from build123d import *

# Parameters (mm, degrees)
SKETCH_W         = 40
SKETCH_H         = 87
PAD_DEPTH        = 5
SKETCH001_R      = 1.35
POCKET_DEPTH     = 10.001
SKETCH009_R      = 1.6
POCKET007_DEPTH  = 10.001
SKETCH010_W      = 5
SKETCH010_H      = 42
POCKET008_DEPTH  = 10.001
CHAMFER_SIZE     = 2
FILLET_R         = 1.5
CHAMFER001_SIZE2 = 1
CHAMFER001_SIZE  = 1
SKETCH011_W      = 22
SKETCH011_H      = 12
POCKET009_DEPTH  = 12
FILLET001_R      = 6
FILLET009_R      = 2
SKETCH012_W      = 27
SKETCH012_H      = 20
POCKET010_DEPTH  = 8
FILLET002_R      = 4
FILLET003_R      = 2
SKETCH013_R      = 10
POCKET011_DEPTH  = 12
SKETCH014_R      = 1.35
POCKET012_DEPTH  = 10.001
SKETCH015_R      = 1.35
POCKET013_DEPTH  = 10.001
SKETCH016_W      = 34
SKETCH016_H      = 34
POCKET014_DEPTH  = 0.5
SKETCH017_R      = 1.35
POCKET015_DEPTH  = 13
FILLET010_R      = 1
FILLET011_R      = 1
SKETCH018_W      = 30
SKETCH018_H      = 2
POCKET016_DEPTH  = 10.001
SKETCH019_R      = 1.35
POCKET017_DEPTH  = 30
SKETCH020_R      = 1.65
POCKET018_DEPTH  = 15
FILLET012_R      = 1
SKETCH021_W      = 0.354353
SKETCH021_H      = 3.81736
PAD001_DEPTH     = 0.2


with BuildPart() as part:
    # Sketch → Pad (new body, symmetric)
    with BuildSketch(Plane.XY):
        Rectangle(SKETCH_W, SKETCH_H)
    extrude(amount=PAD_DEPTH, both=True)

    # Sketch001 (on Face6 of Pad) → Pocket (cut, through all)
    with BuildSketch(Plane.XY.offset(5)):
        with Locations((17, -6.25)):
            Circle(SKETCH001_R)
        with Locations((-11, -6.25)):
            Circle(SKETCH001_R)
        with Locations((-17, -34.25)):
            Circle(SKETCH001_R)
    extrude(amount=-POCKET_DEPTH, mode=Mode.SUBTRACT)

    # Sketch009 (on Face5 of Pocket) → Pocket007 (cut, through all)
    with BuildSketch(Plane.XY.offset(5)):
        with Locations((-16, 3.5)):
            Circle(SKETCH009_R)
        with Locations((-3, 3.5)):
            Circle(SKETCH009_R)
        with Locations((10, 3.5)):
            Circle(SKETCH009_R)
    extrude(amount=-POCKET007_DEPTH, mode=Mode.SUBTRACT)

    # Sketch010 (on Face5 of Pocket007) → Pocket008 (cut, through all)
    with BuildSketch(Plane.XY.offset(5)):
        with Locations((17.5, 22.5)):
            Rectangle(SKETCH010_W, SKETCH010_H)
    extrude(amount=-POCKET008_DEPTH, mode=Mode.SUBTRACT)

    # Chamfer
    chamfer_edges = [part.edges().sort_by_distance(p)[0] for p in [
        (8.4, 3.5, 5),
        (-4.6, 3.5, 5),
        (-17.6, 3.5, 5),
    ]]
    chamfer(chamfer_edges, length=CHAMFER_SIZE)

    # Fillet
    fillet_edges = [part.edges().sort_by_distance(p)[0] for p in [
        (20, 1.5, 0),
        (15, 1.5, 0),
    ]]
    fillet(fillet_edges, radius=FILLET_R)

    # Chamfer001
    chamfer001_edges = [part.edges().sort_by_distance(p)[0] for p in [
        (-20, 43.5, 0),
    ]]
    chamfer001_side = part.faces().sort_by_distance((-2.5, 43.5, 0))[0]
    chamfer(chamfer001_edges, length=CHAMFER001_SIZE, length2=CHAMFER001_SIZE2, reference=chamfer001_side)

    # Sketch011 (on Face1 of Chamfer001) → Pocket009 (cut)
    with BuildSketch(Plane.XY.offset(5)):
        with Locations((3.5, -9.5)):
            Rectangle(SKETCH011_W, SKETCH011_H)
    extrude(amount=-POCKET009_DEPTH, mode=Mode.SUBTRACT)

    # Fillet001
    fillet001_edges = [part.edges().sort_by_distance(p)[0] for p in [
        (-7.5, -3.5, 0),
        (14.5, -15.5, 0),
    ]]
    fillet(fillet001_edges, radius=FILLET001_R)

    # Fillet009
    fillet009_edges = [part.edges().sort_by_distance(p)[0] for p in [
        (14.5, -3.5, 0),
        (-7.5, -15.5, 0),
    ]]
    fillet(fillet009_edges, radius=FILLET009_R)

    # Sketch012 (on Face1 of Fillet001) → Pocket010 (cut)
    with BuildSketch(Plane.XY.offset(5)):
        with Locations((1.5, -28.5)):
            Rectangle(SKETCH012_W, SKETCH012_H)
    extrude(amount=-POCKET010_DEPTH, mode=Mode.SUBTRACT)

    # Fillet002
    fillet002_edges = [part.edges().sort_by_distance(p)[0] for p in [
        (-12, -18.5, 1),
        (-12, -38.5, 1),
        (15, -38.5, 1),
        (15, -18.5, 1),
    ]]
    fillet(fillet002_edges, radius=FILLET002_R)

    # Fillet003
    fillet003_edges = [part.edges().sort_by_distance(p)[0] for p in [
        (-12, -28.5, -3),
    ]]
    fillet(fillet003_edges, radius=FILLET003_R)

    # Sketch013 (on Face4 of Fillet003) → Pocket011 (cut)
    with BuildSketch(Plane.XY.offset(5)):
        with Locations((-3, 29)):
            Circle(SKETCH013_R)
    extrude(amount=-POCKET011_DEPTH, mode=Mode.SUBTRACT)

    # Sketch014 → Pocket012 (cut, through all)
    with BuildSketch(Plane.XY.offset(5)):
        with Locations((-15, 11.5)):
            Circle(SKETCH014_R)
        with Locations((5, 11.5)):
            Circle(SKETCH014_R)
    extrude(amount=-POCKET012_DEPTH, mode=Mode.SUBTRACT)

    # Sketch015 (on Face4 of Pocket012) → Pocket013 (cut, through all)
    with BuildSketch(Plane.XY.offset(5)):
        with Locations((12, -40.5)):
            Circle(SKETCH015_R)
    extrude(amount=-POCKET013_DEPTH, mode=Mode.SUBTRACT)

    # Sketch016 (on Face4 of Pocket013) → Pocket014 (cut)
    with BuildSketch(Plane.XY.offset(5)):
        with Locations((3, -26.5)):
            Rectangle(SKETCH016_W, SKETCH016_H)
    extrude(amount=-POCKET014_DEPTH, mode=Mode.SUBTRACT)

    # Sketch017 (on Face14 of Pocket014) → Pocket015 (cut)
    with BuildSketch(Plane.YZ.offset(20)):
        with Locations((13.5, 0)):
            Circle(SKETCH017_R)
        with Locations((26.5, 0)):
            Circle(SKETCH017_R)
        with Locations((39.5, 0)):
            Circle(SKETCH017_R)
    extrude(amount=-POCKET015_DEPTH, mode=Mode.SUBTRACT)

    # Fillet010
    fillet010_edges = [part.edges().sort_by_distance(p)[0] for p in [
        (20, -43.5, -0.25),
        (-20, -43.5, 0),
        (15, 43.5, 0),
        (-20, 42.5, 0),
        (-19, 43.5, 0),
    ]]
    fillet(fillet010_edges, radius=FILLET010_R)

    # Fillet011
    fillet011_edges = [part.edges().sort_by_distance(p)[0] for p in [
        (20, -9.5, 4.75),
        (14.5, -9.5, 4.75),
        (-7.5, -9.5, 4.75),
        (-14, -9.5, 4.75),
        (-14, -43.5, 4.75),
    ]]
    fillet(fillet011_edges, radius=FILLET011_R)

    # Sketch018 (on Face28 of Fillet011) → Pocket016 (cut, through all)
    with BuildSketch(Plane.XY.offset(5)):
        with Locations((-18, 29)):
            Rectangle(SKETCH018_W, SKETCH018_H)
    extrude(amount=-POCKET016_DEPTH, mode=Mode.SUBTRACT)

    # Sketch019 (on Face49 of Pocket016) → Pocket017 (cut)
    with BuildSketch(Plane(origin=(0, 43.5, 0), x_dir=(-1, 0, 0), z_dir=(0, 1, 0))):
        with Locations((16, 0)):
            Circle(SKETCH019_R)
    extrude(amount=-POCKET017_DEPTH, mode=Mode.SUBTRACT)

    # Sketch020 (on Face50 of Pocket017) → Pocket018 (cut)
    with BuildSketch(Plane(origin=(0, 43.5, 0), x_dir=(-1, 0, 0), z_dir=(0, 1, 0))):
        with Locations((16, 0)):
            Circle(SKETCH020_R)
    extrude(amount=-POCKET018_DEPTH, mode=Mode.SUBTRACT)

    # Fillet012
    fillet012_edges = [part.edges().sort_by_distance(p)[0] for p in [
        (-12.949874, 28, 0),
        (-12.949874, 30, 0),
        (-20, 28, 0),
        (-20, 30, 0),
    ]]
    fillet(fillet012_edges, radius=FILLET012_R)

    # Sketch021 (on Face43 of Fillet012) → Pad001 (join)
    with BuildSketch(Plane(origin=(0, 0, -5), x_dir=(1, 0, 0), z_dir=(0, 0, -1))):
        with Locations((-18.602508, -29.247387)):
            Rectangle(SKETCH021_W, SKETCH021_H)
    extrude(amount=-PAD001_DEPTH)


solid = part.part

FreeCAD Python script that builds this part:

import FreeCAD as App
import Part
import Sketcher


def edges_at(feature, points):
    """Names of the edges that pass closest to the given points."""
    edges = feature.Shape.Edges
    near = lambda p: min(range(len(edges)), key=lambda i: edges[i].distToShape(Part.Vertex(*p))[0])
    return sorted({f"Edge{near(p) + 1}" for p in points})

doc = App.newDocument("Part")
body = doc.addObject("PartDesign::Body", "Body")

# Sketch on XY plane
sketch1 = body.newObject("Sketcher::SketchObject", "Sketch")
sketch1.AttachmentSupport = (doc.getObject("XY_Plane"), [""])
sketch1.MapMode = "FlatFace"
sketch1.addGeometry([
    Part.LineSegment(App.Vector(-20, 44, 0), App.Vector(-20, -44, 0)),
    Part.LineSegment(App.Vector(-20, -44, 0), App.Vector(20, -44, 0)),
    Part.LineSegment(App.Vector(20, -44, 0), App.Vector(20, 44, 0)),
    Part.LineSegment(App.Vector(20, 44, 0), App.Vector(-20, 44, 0)),
], False)
sketch1.addConstraint([
    Sketcher.Constraint("Coincident", 0, 2, 1, 1),
    Sketcher.Constraint("Coincident", 1, 2, 2, 1),
    Sketcher.Constraint("Coincident", 2, 2, 3, 1),
    Sketcher.Constraint("Coincident", 3, 2, 0, 1),
    Sketcher.Constraint("Vertical", 0),
    Sketcher.Constraint("Horizontal", 1),
    Sketcher.Constraint("Vertical", 2),
    Sketcher.Constraint("Horizontal", 3),
    Sketcher.Constraint("Symmetric", 0, 2, 2, 2, -1, 1),
    Sketcher.Constraint("DistanceX", 1, 1, 1, 2, 40.0),
    Sketcher.Constraint("DistanceY", 0, 2, 0, 1, 87.0),
])
pad1 = body.newObject("PartDesign::Pad", "Pad")
pad1.Profile = sketch1
pad1.Length = 10
pad1.Midplane = True

# Sketch on XY plane
sketch2 = body.newObject("Sketcher::SketchObject", "Sketch001")
sketch2.AttachmentSupport = (doc.getObject("XY_Plane"), [""])
sketch2.MapMode = "FlatFace"
sketch2.AttachmentOffset = App.Placement(App.Vector(0, 0, 5), App.Rotation())
sketch2.addGeometry([
    Part.Circle(App.Vector(17, -6.2, 0), App.Vector(0, 0, 1), 1.4),
    Part.Circle(App.Vector(-11, -6.2, 0), App.Vector(0, 0, 1), 1.4),
    Part.Circle(App.Vector(-17, -34.2, 0), App.Vector(0, 0, 1), 1.4),
], False)
sketch2.addConstraint([
    Sketcher.Constraint("Equal", 0, 1),
    Sketcher.Constraint("Equal", 1, 2),
    Sketcher.Constraint("Horizontal", 0, 3, 1, 3),
    Sketcher.Constraint("Diameter", 0, 2.7),
    Sketcher.Constraint("DistanceX", -1, 1, 0, 3, 17.0),
    Sketcher.Constraint("DistanceX", 1, 3, -1, 1, 11.0),
    Sketcher.Constraint("DistanceX", 2, 3, -1, 1, 17.0),
    Sketcher.Constraint("DistanceY", 2, 3, 1, 3, 28.0),
    Sketcher.Constraint("DistanceY", 0, 3, -1, 1, 6.25),
])
pocket1 = body.newObject("PartDesign::Pocket", "Pocket")
pocket1.Profile = sketch2
pocket1.Type = "ThroughAll"

# Sketch on XY plane
sketch3 = body.newObject("Sketcher::SketchObject", "Sketch002")
sketch3.AttachmentSupport = (doc.getObject("XY_Plane"), [""])
sketch3.MapMode = "FlatFace"
sketch3.AttachmentOffset = App.Placement(App.Vector(0, 0, 5), App.Rotation())
sketch3.addGeometry([
    Part.Circle(App.Vector(-16, 3.5, 0), App.Vector(0, 0, 1), 1.6),
    Part.Circle(App.Vector(-3, 3.5, 0), App.Vector(0, 0, 1), 1.6),
    Part.Circle(App.Vector(10, 3.5, 0), App.Vector(0, 0, 1), 1.6),
], False)
sketch3.addConstraint([
    Sketcher.Constraint("Equal", 0, 1),
    Sketcher.Constraint("Equal", 1, 2),
    Sketcher.Constraint("Horizontal", 0, 3, 1, 3),
    Sketcher.Constraint("Horizontal", 1, 3, 2, 3),
    Sketcher.Constraint("Diameter", 0, 3.2),
    Sketcher.Constraint("DistanceX", 0, 3, -1, 1, 16.0),
    Sketcher.Constraint("DistanceX", 1, 3, -1, 1, 3.0),
    Sketcher.Constraint("DistanceX", -1, 1, 2, 3, 10.0),
    Sketcher.Constraint("DistanceY", -1, 1, 0, 3, 3.5),
])
pocket2 = body.newObject("PartDesign::Pocket", "Pocket001")
pocket2.Profile = sketch3
pocket2.Type = "ThroughAll"

# Sketch on XY plane
sketch4 = body.newObject("Sketcher::SketchObject", "Sketch003")
sketch4.AttachmentSupport = (doc.getObject("XY_Plane"), [""])
sketch4.MapMode = "FlatFace"
sketch4.AttachmentOffset = App.Placement(App.Vector(0, 0, 5), App.Rotation())
sketch4.addGeometry([
    Part.LineSegment(App.Vector(15, 44, 0), App.Vector(15, 2, 0)),
    Part.LineSegment(App.Vector(15, 2, 0), App.Vector(20, 2, 0)),
    Part.LineSegment(App.Vector(20, 2, 0), App.Vector(20, 44, 0)),
    Part.LineSegment(App.Vector(20, 44, 0), App.Vector(15, 44, 0)),
], False)
sketch4.addConstraint([
    Sketcher.Constraint("Coincident", 0, 2, 1, 1),
    Sketcher.Constraint("Coincident", 1, 2, 2, 1),
    Sketcher.Constraint("Coincident", 2, 2, 3, 1),
    Sketcher.Constraint("Coincident", 3, 2, 0, 1),
    Sketcher.Constraint("Vertical", 0),
    Sketcher.Constraint("Horizontal", 1),
    Sketcher.Constraint("Vertical", 2),
    Sketcher.Constraint("Horizontal", 3),
    Sketcher.Constraint("DistanceX", 1, 1, 1, 2, 5.0),
    Sketcher.Constraint("DistanceY", 0, 2, 0, 1, 42.0),
    Sketcher.Constraint("DistanceX", -1, 1, 0, 2, 15.0),
    Sketcher.Constraint("DistanceY", -1, 1, 0, 2, 1.5),
])
pocket3 = body.newObject("PartDesign::Pocket", "Pocket002")
pocket3.Profile = sketch4
pocket3.Type = "ThroughAll"
doc.recompute()

chamfer = body.newObject("PartDesign::Chamfer", "Chamfer")
chamfer.Base = (pocket3, edges_at(pocket3, [(8.4, 3.5, 5), (-4.6, 3.5, 5), (-17.6, 3.5, 5)]))
chamfer.Size = 2
doc.recompute()

fillet = body.newObject("PartDesign::Fillet", "Fillet")
fillet.Base = (chamfer, edges_at(chamfer, [(20, 1.5, 0), (15, 1.5, 0)]))
fillet.Radius = 1.5
doc.recompute()

chamfer2 = body.newObject("PartDesign::Chamfer", "Chamfer001")
chamfer2.Base = (fillet, edges_at(fillet, [(-20, 43.5, 0)]))
chamfer2.ChamferType = "Two distances"
chamfer2.Size = 1
chamfer2.Size2 = 1

# Sketch on XY plane
sketch5 = body.newObject("Sketcher::SketchObject", "Sketch004")
sketch5.AttachmentSupport = (doc.getObject("XY_Plane"), [""])
sketch5.MapMode = "FlatFace"
sketch5.AttachmentOffset = App.Placement(App.Vector(0, 0, 5), App.Rotation())
sketch5.addGeometry([
    Part.LineSegment(App.Vector(-8, -4, 0), App.Vector(-8, -16, 0)),
    Part.LineSegment(App.Vector(-8, -16, 0), App.Vector(14, -16, 0)),
    Part.LineSegment(App.Vector(14, -16, 0), App.Vector(14, -4, 0)),
    Part.LineSegment(App.Vector(14, -4, 0), App.Vector(-8, -4, 0)),
], False)
sketch5.addConstraint([
    Sketcher.Constraint("Coincident", 0, 2, 1, 1),
    Sketcher.Constraint("Coincident", 1, 2, 2, 1),
    Sketcher.Constraint("Coincident", 2, 2, 3, 1),
    Sketcher.Constraint("Coincident", 3, 2, 0, 1),
    Sketcher.Constraint("Vertical", 0),
    Sketcher.Constraint("Horizontal", 1),
    Sketcher.Constraint("Vertical", 2),
    Sketcher.Constraint("Horizontal", 3),
    Sketcher.Constraint("DistanceX", 1, 1, 1, 2, 22.0),
    Sketcher.Constraint("DistanceY", 0, 2, 0, 1, 12.0),
    Sketcher.Constraint("DistanceX", 0, 2, -1, 1, 7.5),
    Sketcher.Constraint("DistanceY", 0, 2, -1, 1, 15.5),
])
pocket4 = body.newObject("PartDesign::Pocket", "Pocket003")
pocket4.Profile = sketch5
pocket4.Length = 12
doc.recompute()

fillet2 = body.newObject("PartDesign::Fillet", "Fillet001")
fillet2.Base = (pocket4, edges_at(pocket4, [(-7.5, -3.5, 0), (14.5, -15.5, 0)]))
fillet2.Radius = 6
doc.recompute()

fillet3 = body.newObject("PartDesign::Fillet", "Fillet002")
fillet3.Base = (fillet2, edges_at(fillet2, [(14.5, -3.5, 0), (-7.5, -15.5, 0)]))
fillet3.Radius = 2

# Sketch on XY plane
sketch6 = body.newObject("Sketcher::SketchObject", "Sketch005")
sketch6.AttachmentSupport = (doc.getObject("XY_Plane"), [""])
sketch6.MapMode = "FlatFace"
sketch6.AttachmentOffset = App.Placement(App.Vector(0, 0, 5), App.Rotation())
sketch6.addGeometry([
    Part.LineSegment(App.Vector(-12, -18, 0), App.Vector(-12, -38, 0)),
    Part.LineSegment(App.Vector(-12, -38, 0), App.Vector(15, -38, 0)),
    Part.LineSegment(App.Vector(15, -38, 0), App.Vector(15, -18, 0)),
    Part.LineSegment(App.Vector(15, -18, 0), App.Vector(-12, -18, 0)),
], False)
sketch6.addConstraint([
    Sketcher.Constraint("Coincident", 0, 2, 1, 1),
    Sketcher.Constraint("Coincident", 1, 2, 2, 1),
    Sketcher.Constraint("Coincident", 2, 2, 3, 1),
    Sketcher.Constraint("Coincident", 3, 2, 0, 1),
    Sketcher.Constraint("Vertical", 0),
    Sketcher.Constraint("Horizontal", 1),
    Sketcher.Constraint("Vertical", 2),
    Sketcher.Constraint("Horizontal", 3),
    Sketcher.Constraint("DistanceX", 1, 1, 1, 2, 27.0),
    Sketcher.Constraint("DistanceY", 0, 2, 0, 1, 20.0),
    Sketcher.Constraint("DistanceX", 0, 2, -1, 1, 12.0),
    Sketcher.Constraint("DistanceY", 0, 2, -1, 1, 38.5),
])
pocket5 = body.newObject("PartDesign::Pocket", "Pocket004")
pocket5.Profile = sketch6
pocket5.Length = 8
doc.recompute()

fillet4 = body.newObject("PartDesign::Fillet", "Fillet003")
fillet4.Base = (pocket5, edges_at(pocket5, [
    (-12, -18.5, 1),
    (-12, -38.5, 1),
    (15, -38.5, 1),
    (15, -18.5, 1),
]))
fillet4.Radius = 4
doc.recompute()

fillet5 = body.newObject("PartDesign::Fillet", "Fillet004")
fillet5.Base = (fillet4, edges_at(fillet4, [(-12, -28.5, -3)]))
fillet5.Radius = 2

# Sketch on XY plane
sketch7 = body.newObject("Sketcher::SketchObject", "Sketch006")
sketch7.AttachmentSupport = (doc.getObject("XY_Plane"), [""])
sketch7.MapMode = "FlatFace"
sketch7.AttachmentOffset = App.Placement(App.Vector(0, 0, 5), App.Rotation())
sketch7.addGeometry(Part.Circle(App.Vector(-3, 29, 0), App.Vector(0, 0, 1), 10), False)
sketch7.addConstraint([
    Sketcher.Constraint("Diameter", 0, 20.0),
    Sketcher.Constraint("DistanceX", 0, 3, -1, 1, 3.0),
    Sketcher.Constraint("DistanceY", -1, 1, 0, 3, 29.0),
])
pocket6 = body.newObject("PartDesign::Pocket", "Pocket005")
pocket6.Profile = sketch7
pocket6.Length = 12

# Sketch on XY plane
sketch8 = body.newObject("Sketcher::SketchObject", "Sketch007")
sketch8.AttachmentSupport = (doc.getObject("XY_Plane"), [""])
sketch8.MapMode = "FlatFace"
sketch8.AttachmentOffset = App.Placement(App.Vector(0, 0, 5), App.Rotation())
sketch8.addGeometry([
    Part.Circle(App.Vector(-15, 11.5, 0), App.Vector(0, 0, 1), 1.4),
    Part.Circle(App.Vector(5, 11.5, 0), App.Vector(0, 0, 1), 1.4),
], False)
sketch8.addConstraint([
    Sketcher.Constraint("Equal", 0, 1),
    Sketcher.Constraint("Horizontal", 0, 3, 1, 3),
    Sketcher.Constraint("Diameter", 0, 2.7),
    Sketcher.Constraint("DistanceX", 0, 3, -1, 1, 15.0),
    Sketcher.Constraint("DistanceX", -1, 1, 1, 3, 5.0),
    Sketcher.Constraint("DistanceY", -1, 1, 0, 3, 11.5),
])
pocket7 = body.newObject("PartDesign::Pocket", "Pocket006")
pocket7.Profile = sketch8
pocket7.Type = "ThroughAll"

# Sketch on XY plane
sketch9 = body.newObject("Sketcher::SketchObject", "Sketch008")
sketch9.AttachmentSupport = (doc.getObject("XY_Plane"), [""])
sketch9.MapMode = "FlatFace"
sketch9.AttachmentOffset = App.Placement(App.Vector(0, 0, 5), App.Rotation())
sketch9.addGeometry(Part.Circle(App.Vector(12, -40.5, 0), App.Vector(0, 0, 1), 1.4), False)
sketch9.addConstraint([
    Sketcher.Constraint("Diameter", 0, 2.7),
    Sketcher.Constraint("DistanceX", -1, 1, 0, 3, 12.0),
    Sketcher.Constraint("DistanceY", 0, 3, -1, 1, 40.5),
])
pocket8 = body.newObject("PartDesign::Pocket", "Pocket007")
pocket8.Profile = sketch9
pocket8.Type = "ThroughAll"

# Sketch on XY plane
sketch10 = body.newObject("Sketcher::SketchObject", "Sketch009")
sketch10.AttachmentSupport = (doc.getObject("XY_Plane"), [""])
sketch10.MapMode = "FlatFace"
sketch10.AttachmentOffset = App.Placement(App.Vector(0, 0, 5), App.Rotation())
sketch10.addGeometry([
    Part.LineSegment(App.Vector(-14, -10, 0), App.Vector(-14, -44, 0)),
    Part.LineSegment(App.Vector(-14, -44, 0), App.Vector(20, -44, 0)),
    Part.LineSegment(App.Vector(20, -44, 0), App.Vector(20, -10, 0)),
    Part.LineSegment(App.Vector(20, -10, 0), App.Vector(-14, -10, 0)),
], False)
sketch10.addConstraint([
    Sketcher.Constraint("Coincident", 0, 2, 1, 1),
    Sketcher.Constraint("Coincident", 1, 2, 2, 1),
    Sketcher.Constraint("Coincident", 2, 2, 3, 1),
    Sketcher.Constraint("Coincident", 3, 2, 0, 1),
    Sketcher.Constraint("Vertical", 0),
    Sketcher.Constraint("Horizontal", 1),
    Sketcher.Constraint("Vertical", 2),
    Sketcher.Constraint("Horizontal", 3),
    Sketcher.Constraint("Equal", 3, 0),
    Sketcher.Constraint("DistanceX", 1, 1, 1, 2, 34.0),
    Sketcher.Constraint("DistanceX", 0, 2, -1, 1, 14.0),
    Sketcher.Constraint("DistanceY", 0, 2, -1, 1, 43.5),
])
pocket9 = body.newObject("PartDesign::Pocket", "Pocket008")
pocket9.Profile = sketch10
pocket9.Length = 0.5

# Sketch on YZ plane
sketch11 = body.newObject("Sketcher::SketchObject", "Sketch010")
sketch11.AttachmentSupport = (doc.getObject("YZ_Plane"), [""])
sketch11.MapMode = "FlatFace"
sketch11.AttachmentOffset = App.Placement(App.Vector(0, 0, 20), App.Rotation())
sketch11.addGeometry([
    Part.Circle(App.Vector(13.5, 0, 0), App.Vector(0, 0, 1), 1.4),
    Part.Circle(App.Vector(26.5, 0, 0), App.Vector(0, 0, 1), 1.4),
    Part.Circle(App.Vector(39.5, 0, 0), App.Vector(0, 0, 1), 1.4),
], False)
sketch11.addConstraint([
    Sketcher.Constraint("Equal", 0, 1),
    Sketcher.Constraint("Equal", 1, 2),
    Sketcher.Constraint("PointOnObject", 0, 3, -1),
    Sketcher.Constraint("PointOnObject", 1, 3, -1),
    Sketcher.Constraint("PointOnObject", 2, 3, -1),
    Sketcher.Constraint("Diameter", 0, 2.7),
    Sketcher.Constraint("DistanceX", 0, 3, 1, 3, 13.0),
    Sketcher.Constraint("DistanceX", 1, 3, 2, 3, 13.0),
    Sketcher.Constraint("DistanceX", -1, 1, 0, 3, 13.5),
])
pocket10 = body.newObject("PartDesign::Pocket", "Pocket009")
pocket10.Profile = sketch11
pocket10.Length = 13
doc.recompute()

fillet6 = body.newObject("PartDesign::Fillet", "Fillet005")
fillet6.Base = (pocket10, edges_at(pocket10, [
    (20, -43.5, -0.25),
    (-20, -43.5, 0),
    (15, 43.5, 0),
    (-20, 42.5, 0),
    (-19, 43.5, 0),
]))
fillet6.Radius = 1
doc.recompute()

fillet7 = body.newObject("PartDesign::Fillet", "Fillet006")
fillet7.Base = (fillet6, edges_at(fillet6, [
    (20, -9.5, 4.75),
    (14.5, -9.5, 4.75),
    (-7.5, -9.5, 4.75),
    (-14, -9.5, 4.75),
    (-14, -43.5, 4.75),
]))
fillet7.Radius = 1

# Sketch on XY plane
sketch12 = body.newObject("Sketcher::SketchObject", "Sketch011")
sketch12.AttachmentSupport = (doc.getObject("XY_Plane"), [""])
sketch12.MapMode = "FlatFace"
sketch12.AttachmentOffset = App.Placement(App.Vector(0, 0, 5), App.Rotation())
sketch12.addGeometry([
    Part.LineSegment(App.Vector(-33, 30, 0), App.Vector(-33, 28, 0)),
    Part.LineSegment(App.Vector(-33, 28, 0), App.Vector(-3, 28, 0)),
    Part.LineSegment(App.Vector(-3, 28, 0), App.Vector(-3, 30, 0)),
    Part.LineSegment(App.Vector(-3, 30, 0), App.Vector(-33, 30, 0)),
], False)
sketch12.addConstraint([
    Sketcher.Constraint("Coincident", 0, 2, 1, 1),
    Sketcher.Constraint("Coincident", 1, 2, 2, 1),
    Sketcher.Constraint("Coincident", 2, 2, 3, 1),
    Sketcher.Constraint("Coincident", 3, 2, 0, 1),
    Sketcher.Constraint("Vertical", 0),
    Sketcher.Constraint("Horizontal", 1),
    Sketcher.Constraint("Vertical", 2),
    Sketcher.Constraint("Horizontal", 3),
    Sketcher.Constraint("DistanceX", 1, 1, 1, 2, 30.0),
    Sketcher.Constraint("DistanceY", 0, 2, 0, 1, 2.0),
    Sketcher.Constraint("DistanceX", 0, 2, -1, 1, 33.0),
    Sketcher.Constraint("DistanceY", -1, 1, 0, 2, 28.0),
])
pocket11 = body.newObject("PartDesign::Pocket", "Pocket010")
pocket11.Profile = sketch12
pocket11.Type = "ThroughAll"

# Sketch on XZ plane
sketch13 = body.newObject("Sketcher::SketchObject", "Sketch012")
sketch13.AttachmentSupport = (doc.getObject("XZ_Plane"), [""])
sketch13.MapMode = "FlatFace"
sketch13.AttachmentOffset = App.Placement(App.Vector(0, 0, -43.5), App.Rotation())
sketch13.addGeometry(Part.Circle(App.Vector(-16, 0, 0), App.Vector(0, 0, 1), 1.4), False)
sketch13.addConstraint([
    Sketcher.Constraint("PointOnObject", 0, 3, -1),
    Sketcher.Constraint("Diameter", 0, 2.7),
    Sketcher.Constraint("DistanceX", 0, 3, -1, 1, 16.0),
])
pocket12 = body.newObject("PartDesign::Pocket", "Pocket011")
pocket12.Profile = sketch13
pocket12.Length = 30
pocket12.Reversed = True

# Sketch on XZ plane
sketch14 = body.newObject("Sketcher::SketchObject", "Sketch013")
sketch14.AttachmentSupport = (doc.getObject("XZ_Plane"), [""])
sketch14.MapMode = "FlatFace"
sketch14.AttachmentOffset = App.Placement(App.Vector(0, 0, -43.5), App.Rotation())
sketch14.addGeometry(Part.Circle(App.Vector(-16, 0, 0), App.Vector(0, 0, 1), 1.6), False)
sketch14.addConstraint([
    Sketcher.Constraint("PointOnObject", 0, 3, -1),
    Sketcher.Constraint("Diameter", 0, 3.3),
    Sketcher.Constraint("DistanceX", 0, 3, -1, 1, 16.0),
])
pocket13 = body.newObject("PartDesign::Pocket", "Pocket012")
pocket13.Profile = sketch14
pocket13.Length = 15
pocket13.Reversed = True
doc.recompute()

fillet8 = body.newObject("PartDesign::Fillet", "Fillet007")
fillet8.Base = (pocket13, edges_at(pocket13, [
    (-12.95, 28, 0),
    (-12.95, 30, 0),
    (-20, 28, 0),
    (-20, 30, 0),
]))
fillet8.Radius = 1

# Sketch on XY plane
sketch15 = body.newObject("Sketcher::SketchObject", "Sketch014")
sketch15.AttachmentSupport = (doc.getObject("XY_Plane"), [""])
sketch15.MapMode = "FlatFace"
sketch15.AttachmentOffset = App.Placement(App.Vector(0, 0, -5), App.Rotation())
sketch15.addGeometry([
    Part.LineSegment(App.Vector(-18.78, 27.34, 0), App.Vector(-18.78, 31.16, 0)),
    Part.LineSegment(App.Vector(-18.78, 31.16, 0), App.Vector(-18.43, 31.16, 0)),
    Part.LineSegment(App.Vector(-18.43, 31.16, 0), App.Vector(-18.43, 27.34, 0)),
    Part.LineSegment(App.Vector(-18.43, 27.34, 0), App.Vector(-18.78, 27.34, 0)),
], False)
sketch15.addConstraint([
    Sketcher.Constraint("Coincident", 0, 2, 1, 1),
    Sketcher.Constraint("Coincident", 1, 2, 2, 1),
    Sketcher.Constraint("Coincident", 2, 2, 3, 1),
    Sketcher.Constraint("Coincident", 3, 2, 0, 1),
    Sketcher.Constraint("Vertical", 0),
    Sketcher.Constraint("Horizontal", 1),
    Sketcher.Constraint("Vertical", 2),
    Sketcher.Constraint("Horizontal", 3),
    Sketcher.Constraint("DistanceY", 0, 1, 0, 2, 3.81736),
    Sketcher.Constraint("DistanceX", 1, 1, 1, 2, 0.354353),
    Sketcher.Constraint("DistanceX", 1, 2, -1, 1, 18.425331),
    Sketcher.Constraint("DistanceY", -1, 1, 0, 2, 31.156067),
])
pad2 = body.newObject("PartDesign::Pad", "Pad001")
pad2.Profile = sketch15
pad2.Length = 0.2

doc.recompute()
